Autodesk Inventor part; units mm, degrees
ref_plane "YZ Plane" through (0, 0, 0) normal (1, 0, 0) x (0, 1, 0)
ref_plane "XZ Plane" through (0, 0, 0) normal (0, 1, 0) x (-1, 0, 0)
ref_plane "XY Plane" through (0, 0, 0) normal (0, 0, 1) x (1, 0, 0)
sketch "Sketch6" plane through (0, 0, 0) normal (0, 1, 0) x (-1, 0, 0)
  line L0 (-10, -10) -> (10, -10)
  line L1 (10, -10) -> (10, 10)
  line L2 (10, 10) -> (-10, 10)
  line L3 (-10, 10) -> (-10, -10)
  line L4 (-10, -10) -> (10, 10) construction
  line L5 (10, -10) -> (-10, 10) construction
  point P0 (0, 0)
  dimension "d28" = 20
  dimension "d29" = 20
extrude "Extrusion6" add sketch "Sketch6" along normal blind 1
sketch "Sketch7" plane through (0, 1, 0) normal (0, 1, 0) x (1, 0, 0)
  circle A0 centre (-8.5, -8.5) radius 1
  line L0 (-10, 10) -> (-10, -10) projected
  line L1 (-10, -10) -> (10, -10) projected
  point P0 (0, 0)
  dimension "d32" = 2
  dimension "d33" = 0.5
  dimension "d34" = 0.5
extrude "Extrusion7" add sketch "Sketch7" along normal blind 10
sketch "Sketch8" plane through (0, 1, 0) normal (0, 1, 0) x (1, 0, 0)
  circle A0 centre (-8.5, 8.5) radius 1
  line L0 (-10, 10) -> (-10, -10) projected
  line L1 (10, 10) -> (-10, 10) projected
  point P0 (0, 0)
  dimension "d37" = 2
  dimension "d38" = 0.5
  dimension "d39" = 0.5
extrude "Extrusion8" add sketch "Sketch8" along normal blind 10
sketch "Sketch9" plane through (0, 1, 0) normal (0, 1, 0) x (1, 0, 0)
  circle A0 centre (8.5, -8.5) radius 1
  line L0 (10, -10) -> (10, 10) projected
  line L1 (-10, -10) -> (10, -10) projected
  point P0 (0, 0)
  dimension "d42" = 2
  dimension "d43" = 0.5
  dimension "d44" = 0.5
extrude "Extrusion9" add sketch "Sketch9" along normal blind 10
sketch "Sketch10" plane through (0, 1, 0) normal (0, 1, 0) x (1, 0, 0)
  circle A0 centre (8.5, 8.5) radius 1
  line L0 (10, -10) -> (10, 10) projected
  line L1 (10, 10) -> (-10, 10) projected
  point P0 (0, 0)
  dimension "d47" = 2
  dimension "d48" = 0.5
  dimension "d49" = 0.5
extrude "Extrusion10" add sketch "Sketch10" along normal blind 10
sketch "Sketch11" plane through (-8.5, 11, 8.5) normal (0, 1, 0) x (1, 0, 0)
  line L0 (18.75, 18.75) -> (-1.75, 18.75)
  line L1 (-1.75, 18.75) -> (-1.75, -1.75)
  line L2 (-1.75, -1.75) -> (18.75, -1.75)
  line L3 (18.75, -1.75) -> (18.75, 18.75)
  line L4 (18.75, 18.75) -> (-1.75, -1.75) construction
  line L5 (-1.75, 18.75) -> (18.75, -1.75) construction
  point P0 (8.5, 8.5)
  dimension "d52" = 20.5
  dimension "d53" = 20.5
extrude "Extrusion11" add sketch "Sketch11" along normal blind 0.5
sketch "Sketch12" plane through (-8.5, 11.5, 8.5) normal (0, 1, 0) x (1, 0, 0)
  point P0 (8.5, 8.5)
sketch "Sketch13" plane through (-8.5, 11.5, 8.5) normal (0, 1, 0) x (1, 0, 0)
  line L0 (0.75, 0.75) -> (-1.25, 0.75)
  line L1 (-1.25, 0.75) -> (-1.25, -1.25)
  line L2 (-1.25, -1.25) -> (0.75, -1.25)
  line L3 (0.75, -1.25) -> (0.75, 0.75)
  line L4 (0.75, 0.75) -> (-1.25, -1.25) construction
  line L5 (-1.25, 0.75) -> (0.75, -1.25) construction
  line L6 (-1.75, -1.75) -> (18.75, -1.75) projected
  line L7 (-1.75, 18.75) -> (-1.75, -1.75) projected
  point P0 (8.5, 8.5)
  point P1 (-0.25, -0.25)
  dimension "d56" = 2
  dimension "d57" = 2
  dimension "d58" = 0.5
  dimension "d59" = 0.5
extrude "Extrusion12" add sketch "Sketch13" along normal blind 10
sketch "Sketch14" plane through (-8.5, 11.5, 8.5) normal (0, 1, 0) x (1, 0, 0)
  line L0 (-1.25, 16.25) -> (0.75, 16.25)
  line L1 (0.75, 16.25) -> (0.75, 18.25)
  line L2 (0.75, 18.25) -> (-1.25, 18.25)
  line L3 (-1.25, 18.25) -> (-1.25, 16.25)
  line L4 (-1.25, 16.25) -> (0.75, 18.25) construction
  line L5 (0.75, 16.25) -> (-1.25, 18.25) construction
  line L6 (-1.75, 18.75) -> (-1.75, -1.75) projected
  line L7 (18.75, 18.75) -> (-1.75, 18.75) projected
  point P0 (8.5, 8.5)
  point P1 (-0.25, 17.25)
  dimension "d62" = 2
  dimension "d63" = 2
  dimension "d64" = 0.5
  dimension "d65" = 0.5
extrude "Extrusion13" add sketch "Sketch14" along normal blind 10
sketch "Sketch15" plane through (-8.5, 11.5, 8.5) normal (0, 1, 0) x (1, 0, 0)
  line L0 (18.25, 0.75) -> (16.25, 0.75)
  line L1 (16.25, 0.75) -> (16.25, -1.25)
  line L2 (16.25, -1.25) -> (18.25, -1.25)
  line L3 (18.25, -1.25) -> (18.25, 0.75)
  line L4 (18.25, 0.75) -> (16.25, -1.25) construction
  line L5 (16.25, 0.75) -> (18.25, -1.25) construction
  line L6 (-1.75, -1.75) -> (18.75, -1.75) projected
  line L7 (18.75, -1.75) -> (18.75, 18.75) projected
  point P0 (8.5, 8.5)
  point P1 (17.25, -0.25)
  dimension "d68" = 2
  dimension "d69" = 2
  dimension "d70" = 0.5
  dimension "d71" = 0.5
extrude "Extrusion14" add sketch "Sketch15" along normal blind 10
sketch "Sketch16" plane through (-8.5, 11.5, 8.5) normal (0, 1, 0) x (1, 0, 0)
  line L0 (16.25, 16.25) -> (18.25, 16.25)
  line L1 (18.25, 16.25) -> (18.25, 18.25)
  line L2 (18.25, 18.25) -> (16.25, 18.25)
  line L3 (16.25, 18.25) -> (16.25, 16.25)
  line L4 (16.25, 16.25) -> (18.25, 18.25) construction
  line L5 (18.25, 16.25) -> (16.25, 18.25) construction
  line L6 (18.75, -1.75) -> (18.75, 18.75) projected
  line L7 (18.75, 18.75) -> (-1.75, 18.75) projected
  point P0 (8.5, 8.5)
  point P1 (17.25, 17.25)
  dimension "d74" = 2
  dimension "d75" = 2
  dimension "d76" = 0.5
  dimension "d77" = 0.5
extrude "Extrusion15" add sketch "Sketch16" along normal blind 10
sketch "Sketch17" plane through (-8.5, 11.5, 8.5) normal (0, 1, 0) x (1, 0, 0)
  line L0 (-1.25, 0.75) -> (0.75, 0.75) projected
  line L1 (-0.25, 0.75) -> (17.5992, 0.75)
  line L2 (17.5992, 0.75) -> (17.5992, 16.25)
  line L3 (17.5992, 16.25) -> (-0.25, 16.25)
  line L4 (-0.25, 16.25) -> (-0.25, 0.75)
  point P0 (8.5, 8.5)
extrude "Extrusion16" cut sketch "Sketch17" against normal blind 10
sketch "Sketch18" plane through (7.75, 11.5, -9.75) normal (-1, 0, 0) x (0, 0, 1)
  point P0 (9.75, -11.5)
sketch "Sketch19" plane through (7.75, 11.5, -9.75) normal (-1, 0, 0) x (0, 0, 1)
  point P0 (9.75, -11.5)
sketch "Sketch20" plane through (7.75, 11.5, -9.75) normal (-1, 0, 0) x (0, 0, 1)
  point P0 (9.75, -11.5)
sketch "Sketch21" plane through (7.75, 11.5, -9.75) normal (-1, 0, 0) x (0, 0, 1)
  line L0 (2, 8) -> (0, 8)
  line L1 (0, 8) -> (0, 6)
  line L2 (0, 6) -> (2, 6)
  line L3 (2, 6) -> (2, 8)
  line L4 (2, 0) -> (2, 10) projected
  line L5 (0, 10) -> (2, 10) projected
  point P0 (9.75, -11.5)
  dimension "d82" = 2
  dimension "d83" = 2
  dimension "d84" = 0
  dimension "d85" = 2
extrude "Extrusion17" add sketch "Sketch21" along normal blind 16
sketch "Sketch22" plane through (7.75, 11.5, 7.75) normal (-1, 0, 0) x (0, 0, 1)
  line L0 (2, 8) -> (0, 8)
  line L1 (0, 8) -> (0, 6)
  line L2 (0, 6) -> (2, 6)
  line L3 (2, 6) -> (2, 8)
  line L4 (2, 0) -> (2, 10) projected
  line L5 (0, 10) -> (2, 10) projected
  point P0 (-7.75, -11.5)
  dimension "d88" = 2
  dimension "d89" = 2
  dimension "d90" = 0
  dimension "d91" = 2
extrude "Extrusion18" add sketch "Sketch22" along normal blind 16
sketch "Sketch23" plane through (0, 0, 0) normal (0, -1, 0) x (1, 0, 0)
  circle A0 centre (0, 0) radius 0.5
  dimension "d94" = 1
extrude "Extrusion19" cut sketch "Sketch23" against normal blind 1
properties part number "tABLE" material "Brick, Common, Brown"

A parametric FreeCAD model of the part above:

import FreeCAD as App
import Part
import Sketcher

V = App.Vector
Q = App.Units.Quantity


def add_polygon(sketch, points):
    """Adds a closed chain of lines whose ends are joined by coincident constraints."""
    first, n = sketch.GeometryCount, len(points)
    for a, b in zip(points, points[1:] + points[:1]):
        sketch.addGeometry(Part.LineSegment(App.Vector(*a, 0), App.Vector(*b, 0)), False)
    for i in range(n):
        sketch.addConstraint(Sketcher.Constraint("Coincident", first + i, 2, first + (i + 1) % n, 1))

doc = App.newDocument("Part")
params = doc.addObject("Spreadsheet::Sheet", "Params")
for row, (alias, value) in enumerate([
    ("sketch1_width", "20 mm"),
    ("pad1_length", "1 mm"),
    ("sketch2_diameter", "2 mm"),
    ("pad2_length", "10 mm"),
    ("sketch3_diameter", "2 mm"),
    ("pad3_length", "10 mm"),
    ("sketch4_diameter", "2 mm"),
    ("pad4_length", "10 mm"),
    ("sketch5_diameter", "2 mm"),
    ("pad5_length", "10 mm"),
    ("sketch6_width", "20.5 mm"),
    ("pad6_length", "0.5 mm"),
    ("sketch7_width", "2 mm"),
    ("pad7_length", "10 mm"),
    ("sketch8_width", "2 mm"),
    ("pad8_length", "10 mm"),
    ("sketch9_width", "2 mm"),
    ("pad9_length", "10 mm"),
    ("sketch10_width", "2 mm"),
    ("pad10_length", "10 mm"),
    ("sketch11_height", "15.5 mm"),
    ("pocket1_length", "10 mm"),
    ("sketch12_width", "2 mm"),
    ("pad11_length", "16 mm"),
    ("sketch13_width", "2 mm"),
    ("pad12_length", "16 mm"),
    ("sketch14_diameter", "1 mm"),
    ("pocket2_length", "1 mm"),
], start=1):
    params.set(f"A{row}", alias)
    params.set(f"B{row}", "=" + value)
    params.setAlias(f"B{row}", alias)

body = doc.addObject("PartDesign::Body", "Body")

# Sketch on XZ plane
sketch1 = body.newObject("Sketcher::SketchObject", "Sketch")
sketch1.AttachmentSupport = (doc.getObject("XZ_Plane"), [""])
sketch1.MapMode = "FlatFace"
add_polygon(sketch1, [(10, 10), (10, -10), (-10, -10), (-10, 10)])  # lines 0-3
sketch1.addConstraint([
    Sketcher.Constraint("Vertical", 0),
    Sketcher.Constraint("Horizontal", 1),
    Sketcher.Constraint("Vertical", 2),
    Sketcher.Constraint("Horizontal", 3),
    Sketcher.Constraint("Symmetric", 0, 2, 2, 2, -1, 1),
    Sketcher.Constraint("Equal", 3, 0),
    Sketcher.Constraint("DistanceX", 1, 2, 1, 1, Q("20 mm")),
])
sketch1.setExpression("Constraints[10]", "Params.sketch1_width")
pad1 = body.newObject("PartDesign::Pad", "Pad")
pad1.Profile = sketch1
pad1.setExpression("Length", "Params.pad1_length")
pad1.Reversed = True

# Sketch on XZ plane
sketch2 = body.newObject("Sketcher::SketchObject", "Sketch001")
sketch2.AttachmentSupport = (doc.getObject("XZ_Plane"), [""])
sketch2.MapMode = "FlatFace"
sketch2.AttachmentOffset = App.Placement(V(0, 0, -1), App.Rotation())
sketch2.addGeometry(Part.Circle(V(-8.5, 8.5, 0), V(0, 0, 1), 1), False)
sketch2.addConstraint([
    Sketcher.Constraint("Diameter", 0, Q("2 mm")),
    Sketcher.Constraint("DistanceX", 0, 3, -1, 1, Q("8.5 mm")),
    Sketcher.Constraint("DistanceY", -1, 1, 0, 3, Q("8.5 mm")),
])
sketch2.setExpression("Constraints[0]", "Params.sketch2_diameter")
pad2 = body.newObject("PartDesign::Pad", "Pad001")
pad2.Profile = sketch2
pad2.setExpression("Length", "Params.pad2_length")
pad2.Reversed = True

# Sketch on XZ plane
sketch3 = body.newObject("Sketcher::SketchObject", "Sketch002")
sketch3.AttachmentSupport = (doc.getObject("XZ_Plane"), [""])
sketch3.MapMode = "FlatFace"
sketch3.AttachmentOffset = App.Placement(V(0, 0, -1), App.Rotation())
sketch3.addGeometry(Part.Circle(V(-8.5, -8.5, 0), V(0, 0, 1), 1), False)
sketch3.addConstraint([
    Sketcher.Constraint("Diameter", 0, Q("2 mm")),
    Sketcher.Constraint("DistanceX", 0, 3, -1, 1, Q("8.5 mm")),
    Sketcher.Constraint("DistanceY", 0, 3, -1, 1, Q("8.5 mm")),
])
sketch3.setExpression("Constraints[0]", "Params.sketch3_diameter")
pad3 = body.newObject("PartDesign::Pad", "Pad002")
pad3.Profile = sketch3
pad3.setExpression("Length", "Params.pad3_length")
pad3.Reversed = True

# Sketch on XZ plane
sketch4 = body.newObject("Sketcher::SketchObject", "Sketch003")
sketch4.AttachmentSupport = (doc.getObject("XZ_Plane"), [""])
sketch4.MapMode = "FlatFace"
sketch4.AttachmentOffset = App.Placement(V(0, 0, -1), App.Rotation())
sketch4.addGeometry(Part.Circle(V(8.5, 8.5, 0), V(0, 0, 1), 1), False)
sketch4.addConstraint([
    Sketcher.Constraint("Diameter", 0, Q("2 mm")),
    Sketcher.Constraint("DistanceX", -1, 1, 0, 3, Q("8.5 mm")),
    Sketcher.Constraint("DistanceY", -1, 1, 0, 3, Q("8.5 mm")),
])
sketch4.setExpression("Constraints[0]", "Params.sketch4_diameter")
pad4 = body.newObject("PartDesign::Pad", "Pad003")
pad4.Profile = sketch4
pad4.setExpression("Length", "Params.pad4_length")
pad4.Reversed = True

# Sketch on XZ plane
sketch5 = body.newObject("Sketcher::SketchObject", "Sketch004")
sketch5.AttachmentSupport = (doc.getObject("XZ_Plane"), [""])
sketch5.MapMode = "FlatFace"
sketch5.AttachmentOffset = App.Placement(V(0, 0, -1), App.Rotation())
sketch5.addGeometry(Part.Circle(V(8.5, -8.5, 0), V(0, 0, 1), 1), False)
sketch5.addConstraint([
    Sketcher.Constraint("Diameter", 0, Q("2 mm")),
    Sketcher.Constraint("DistanceX", -1, 1, 0, 3, Q("8.5 mm")),
    Sketcher.Constraint("DistanceY", 0, 3, -1, 1, Q("8.5 mm")),
])
sketch5.setExpression("Constraints[0]", "Params.sketch5_diameter")
pad5 = body.newObject("PartDesign::Pad", "Pad004")
pad5.Profile = sketch5
pad5.setExpression("Length", "Params.pad5_length")
pad5.Reversed = True

# Sketch on XZ plane
sketch6 = body.newObject("Sketcher::SketchObject", "Sketch005")
sketch6.AttachmentSupport = (doc.getObject("XZ_Plane"), [""])
sketch6.MapMode = "FlatFace"
sketch6.AttachmentOffset = App.Placement(V(0, 0, -11), App.Rotation())
add_polygon(sketch6, [(10, 10), (10, -10), (-10, -10), (-10, 10)])  # lines 0-3
sketch6.addConstraint([
    Sketcher.Constraint("Vertical", 0),
    Sketcher.Constraint("Horizontal", 1),
    Sketcher.Constraint("Vertical", 2),
    Sketcher.Constraint("Horizontal", 3),
    Sketcher.Constraint("Symmetric", 0, 2, 2, 2, -1, 1),
    Sketcher.Constraint("Equal", 3, 0),
    Sketcher.Constraint("DistanceX", 1, 2, 1, 1, Q("20.5 mm")),
])
sketch6.setExpression("Constraints[10]", "Params.sketch6_width")
pad6 = body.newObject("PartDesign::Pad", "Pad005")
pad6.Profile = sketch6
pad6.setExpression("Length", "Params.pad6_length")
pad6.Reversed = True

# Sketch on XZ plane
sketch7 = body.newObject("Sketcher::SketchObject", "Sketch006")
sketch7.AttachmentSupport = (doc.getObject("XZ_Plane"), [""])
sketch7.MapMode = "FlatFace"
sketch7.AttachmentOffset = App.Placement(V(0, 0, -11.5), App.Rotation())
add_polygon(sketch7, [(-7.8, 9.8), (-7.8, 7.8), (-9.8, 7.8), (-9.8, 9.8)])  # lines 0-3
sketch7.addConstraint([
    Sketcher.Constraint("Vertical", 0),
    Sketcher.Constraint("Horizontal", 1),
    Sketcher.Constraint("Vertical", 2),
    Sketcher.Constraint("Horizontal", 3),
    Sketcher.Constraint("Equal", 3, 0),
    Sketcher.Constraint("DistanceX", 1, 2, 1, 1, Q("2 mm")),
    Sketcher.Constraint("DistanceX", 0, 2, -1, 1, Q("7.75 mm")),
    Sketcher.Constraint("DistanceY", -1, 1, 0, 2, Q("7.75 mm")),
])
sketch7.setExpression("Constraints[9]", "Params.sketch7_width")
pad7 = body.newObject("PartDesign::Pad", "Pad006")
pad7.Profile = sketch7
pad7.setExpression("Length", "Params.pad7_length")
pad7.Reversed = True

# Sketch on XZ plane
sketch8 = body.newObject("Sketcher::SketchObject", "Sketch007")
sketch8.AttachmentSupport = (doc.getObject("XZ_Plane"), [""])
sketch8.MapMode = "FlatFace"
sketch8.AttachmentOffset = App.Placement(V(0, 0, -11.5), App.Rotation())
add_polygon(sketch8, [(-9.8, -9.8), (-9.8, -7.8), (-7.8, -7.8), (-7.8, -9.8)])  # lines 0-3
sketch8.addConstraint([
    Sketcher.Constraint("Vertical", 0),
    Sketcher.Constraint("Horizontal", 1),
    Sketcher.Constraint("Vertical", 2),
    Sketcher.Constraint("Horizontal", 3),
    Sketcher.Constraint("Equal", 3, 0),
    Sketcher.Constraint("DistanceX", 1, 1, 1, 2, Q("2 mm")),
    Sketcher.Constraint("DistanceX", 0, 2, -1, 1, Q("9.75 mm")),
    Sketcher.Constraint("DistanceY", 0, 2, -1, 1, Q("7.75 mm")),
])
sketch8.setExpression("Constraints[9]", "Params.sketch8_width")
pad8 = body.newObject("PartDesign::Pad", "Pad007")
pad8.Profile = sketch8
pad8.setExpression("Length", "Params.pad8_length")
pad8.Reversed = True

# Sketch on XZ plane
sketch9 = body.newObject("Sketcher::SketchObject", "Sketch008")
sketch9.AttachmentSupport = (doc.getObject("XZ_Plane"), [""])
sketch9.MapMode = "FlatFace"
sketch9.AttachmentOffset = App.Placement(V(0, 0, -11.5), App.Rotation())
add_polygon(sketch9, [(9.8, 9.8), (9.8, 7.8), (7.8, 7.8), (7.8, 9.8)])  # lines 0-3
sketch9.addConstraint([
    Sketcher.Constraint("Vertical", 0),
    Sketcher.Constraint("Horizontal", 1),
    Sketcher.Constraint("Vertical", 2),
    Sketcher.Constraint("Horizontal", 3),
    Sketcher.Constraint("Equal", 3, 0),
    Sketcher.Constraint("DistanceX", 1, 2, 1, 1, Q("2 mm")),
    Sketcher.Constraint("DistanceX", -1, 1, 0, 2, Q("9.75 mm")),
    Sketcher.Constraint("DistanceY", -1, 1, 0, 2, Q("7.75 mm")),
])
sketch9.setExpression("Constraints[9]", "Params.sketch9_width")
pad9 = body.newObject("PartDesign::Pad", "Pad008")
pad9.Profile = sketch9
pad9.setExpression("Length", "Params.pad9_length")
pad9.Reversed = True

# Sketch on XZ plane
sketch10 = body.newObject("Sketcher::SketchObject", "Sketch009")
sketch10.AttachmentSupport = (doc.getObject("XZ_Plane"), [""])
sketch10.MapMode = "FlatFace"
sketch10.AttachmentOffset = App.Placement(V(0, 0, -11.5), App.Rotation())
add_polygon(sketch10, [(7.8, -9.8), (7.8, -7.8), (9.8, -7.8), (9.8, -9.8)])  # lines 0-3
sketch10.addConstraint([
    Sketcher.Constraint("Vertical", 0),
    Sketcher.Constraint("Horizontal", 1),
    Sketcher.Constraint("Vertical", 2),
    Sketcher.Constraint("Horizontal", 3),
    Sketcher.Constraint("Equal", 3, 0),
    Sketcher.Constraint("DistanceX", 1, 1, 1, 2, Q("2 mm")),
    Sketcher.Constraint("DistanceX", -1, 1, 0, 2, Q("7.75 mm")),
    Sketcher.Constraint("DistanceY", 0, 2, -1, 1, Q("7.75 mm")),
])
sketch10.setExpression("Constraints[9]", "Params.sketch10_width")
pad10 = body.newObject("PartDesign::Pad", "Pad009")
pad10.Profile = sketch10
pad10.setExpression("Length", "Params.pad10_length")
pad10.Reversed = True

# Sketch on XZ plane
sketch11 = body.newObject("Sketcher::SketchObject", "Sketch010")
sketch11.AttachmentSupport = (doc.getObject("XZ_Plane"), [""])
sketch11.MapMode = "FlatFace"
sketch11.AttachmentOffset = App.Placement(V(0, 0, -11.5), App.Rotation())
add_polygon(sketch11, [(-9, -8), (-9, 8), (9, 8), (9, -8)])  # lines 0-3
sketch11.addConstraint([
    Sketcher.Constraint("Vertical", 0),
    Sketcher.Constraint("Horizontal", 1),
    Sketcher.Constraint("Vertical", 2),
    Sketcher.Constraint("Horizontal", 3),
    Sketcher.Constraint("DistanceY", 0, 1, 0, 2, Q("15.5 mm")),
    Sketcher.Constraint("DistanceX", 0, 2, -1, 1, Q("8.75 mm")),
    Sketcher.Constraint("DistanceY", -1, 1, 0, 2, Q("7.75 mm")),
    Sketcher.Constraint("DistanceX", 1, 1, 1, 2, Q("17.8492 mm")),
])
sketch11.setExpression("Constraints[8]", "Params.sketch11_height")
pocket1 = body.newObject("PartDesign::Pocket", "Pocket")
pocket1.Profile = sketch11
pocket1.setExpression("Length", "Params.pocket1_length")
pocket1.Reversed = True

# Sketch on YZ plane
sketch12 = body.newObject("Sketcher::SketchObject", "Sketch011")
sketch12.AttachmentSupport = (doc.getObject("YZ_Plane"), [""])
sketch12.MapMode = "FlatFace"
sketch12.AttachmentOffset = App.Placement(V(0, 0, 7.75), App.Rotation())
add_polygon(sketch12, [(17.5, -7.8), (19.5, -7.8), (19.5, -9.8), (17.5, -9.8)])  # lines 0-3
sketch12.addConstraint([
    Sketcher.Constraint("Horizontal", 0),
    Sketcher.Constraint("Vertical", 1),
    Sketcher.Constraint("Horizontal", 2),
    Sketcher.Constraint("Vertical", 3),
    Sketcher.Constraint("Equal", 2, 1),
    Sketcher.Constraint("DistanceX", 0, 1, 0, 2, Q("2 mm")),
    Sketcher.Constraint("DistanceX", -1, 1, 0, 2, Q("19.5 mm")),
    Sketcher.Constraint("DistanceY", 0, 2, -1, 1, Q("7.75 mm")),
])
sketch12.setExpression("Constraints[9]", "Params.sketch12_width")
pad11 = body.newObject("PartDesign::Pad", "Pad010")
pad11.Profile = sketch12
pad11.setExpression("Length", "Params.pad11_length")
pad11.Reversed = True

# Sketch on YZ plane
sketch13 = body.newObject("Sketcher::SketchObject", "Sketch012")
sketch13.AttachmentSupport = (doc.getObject("YZ_Plane"), [""])
sketch13.MapMode = "FlatFace"
sketch13.AttachmentOffset = App.Placement(V(0, 0, 7.75), App.Rotation())
add_polygon(sketch13, [(17.5, 9.8), (19.5, 9.8), (19.5, 7.8), (17.5, 7.8)])  # lines 0-3
sketch13.addConstraint([
    Sketcher.Constraint("Horizontal", 0),
    Sketcher.Constraint("Vertical", 1),
    Sketcher.Constraint("Horizontal", 2),
    Sketcher.Constraint("Vertical", 3),
    Sketcher.Constraint("Equal", 2, 1),
    Sketcher.Constraint("DistanceX", 0, 1, 0, 2, Q("2 mm")),
    Sketcher.Constraint("DistanceX", -1, 1, 0, 2, Q("19.5 mm")),
    Sketcher.Constraint("DistanceY", -1, 1, 0, 2, Q("9.75 mm")),
])
sketch13.setExpression("Constraints[9]", "Params.sketch13_width")
pad12 = body.newObject("PartDesign::Pad", "Pad011")
pad12.Profile = sketch13
pad12.setExpression("Length", "Params.pad12_length")
pad12.Reversed = True

# Sketch on XZ plane
sketch14 = body.newObject("Sketcher::SketchObject", "Sketch013")
sketch14.AttachmentSupport = (doc.getObject("XZ_Plane"), [""])
sketch14.MapMode = "FlatFace"
sketch14.addGeometry(Part.Circle(V(0, 0, 0), V(0, 0, 1), 0.5), False)
sketch14.addConstraint([
    Sketcher.Constraint("Coincident", 0, 3, -1, 1),
    Sketcher.Constraint("Diameter", 0, Q("1 mm")),
])
sketch14.setExpression("Constraints[1]", "Params.sketch14_diameter")
pocket2 = body.newObject("PartDesign::Pocket", "Pocket001")
pocket2.Profile = sketch14
pocket2.setExpression("Length", "Params.pocket2_length")

doc.recompute()
